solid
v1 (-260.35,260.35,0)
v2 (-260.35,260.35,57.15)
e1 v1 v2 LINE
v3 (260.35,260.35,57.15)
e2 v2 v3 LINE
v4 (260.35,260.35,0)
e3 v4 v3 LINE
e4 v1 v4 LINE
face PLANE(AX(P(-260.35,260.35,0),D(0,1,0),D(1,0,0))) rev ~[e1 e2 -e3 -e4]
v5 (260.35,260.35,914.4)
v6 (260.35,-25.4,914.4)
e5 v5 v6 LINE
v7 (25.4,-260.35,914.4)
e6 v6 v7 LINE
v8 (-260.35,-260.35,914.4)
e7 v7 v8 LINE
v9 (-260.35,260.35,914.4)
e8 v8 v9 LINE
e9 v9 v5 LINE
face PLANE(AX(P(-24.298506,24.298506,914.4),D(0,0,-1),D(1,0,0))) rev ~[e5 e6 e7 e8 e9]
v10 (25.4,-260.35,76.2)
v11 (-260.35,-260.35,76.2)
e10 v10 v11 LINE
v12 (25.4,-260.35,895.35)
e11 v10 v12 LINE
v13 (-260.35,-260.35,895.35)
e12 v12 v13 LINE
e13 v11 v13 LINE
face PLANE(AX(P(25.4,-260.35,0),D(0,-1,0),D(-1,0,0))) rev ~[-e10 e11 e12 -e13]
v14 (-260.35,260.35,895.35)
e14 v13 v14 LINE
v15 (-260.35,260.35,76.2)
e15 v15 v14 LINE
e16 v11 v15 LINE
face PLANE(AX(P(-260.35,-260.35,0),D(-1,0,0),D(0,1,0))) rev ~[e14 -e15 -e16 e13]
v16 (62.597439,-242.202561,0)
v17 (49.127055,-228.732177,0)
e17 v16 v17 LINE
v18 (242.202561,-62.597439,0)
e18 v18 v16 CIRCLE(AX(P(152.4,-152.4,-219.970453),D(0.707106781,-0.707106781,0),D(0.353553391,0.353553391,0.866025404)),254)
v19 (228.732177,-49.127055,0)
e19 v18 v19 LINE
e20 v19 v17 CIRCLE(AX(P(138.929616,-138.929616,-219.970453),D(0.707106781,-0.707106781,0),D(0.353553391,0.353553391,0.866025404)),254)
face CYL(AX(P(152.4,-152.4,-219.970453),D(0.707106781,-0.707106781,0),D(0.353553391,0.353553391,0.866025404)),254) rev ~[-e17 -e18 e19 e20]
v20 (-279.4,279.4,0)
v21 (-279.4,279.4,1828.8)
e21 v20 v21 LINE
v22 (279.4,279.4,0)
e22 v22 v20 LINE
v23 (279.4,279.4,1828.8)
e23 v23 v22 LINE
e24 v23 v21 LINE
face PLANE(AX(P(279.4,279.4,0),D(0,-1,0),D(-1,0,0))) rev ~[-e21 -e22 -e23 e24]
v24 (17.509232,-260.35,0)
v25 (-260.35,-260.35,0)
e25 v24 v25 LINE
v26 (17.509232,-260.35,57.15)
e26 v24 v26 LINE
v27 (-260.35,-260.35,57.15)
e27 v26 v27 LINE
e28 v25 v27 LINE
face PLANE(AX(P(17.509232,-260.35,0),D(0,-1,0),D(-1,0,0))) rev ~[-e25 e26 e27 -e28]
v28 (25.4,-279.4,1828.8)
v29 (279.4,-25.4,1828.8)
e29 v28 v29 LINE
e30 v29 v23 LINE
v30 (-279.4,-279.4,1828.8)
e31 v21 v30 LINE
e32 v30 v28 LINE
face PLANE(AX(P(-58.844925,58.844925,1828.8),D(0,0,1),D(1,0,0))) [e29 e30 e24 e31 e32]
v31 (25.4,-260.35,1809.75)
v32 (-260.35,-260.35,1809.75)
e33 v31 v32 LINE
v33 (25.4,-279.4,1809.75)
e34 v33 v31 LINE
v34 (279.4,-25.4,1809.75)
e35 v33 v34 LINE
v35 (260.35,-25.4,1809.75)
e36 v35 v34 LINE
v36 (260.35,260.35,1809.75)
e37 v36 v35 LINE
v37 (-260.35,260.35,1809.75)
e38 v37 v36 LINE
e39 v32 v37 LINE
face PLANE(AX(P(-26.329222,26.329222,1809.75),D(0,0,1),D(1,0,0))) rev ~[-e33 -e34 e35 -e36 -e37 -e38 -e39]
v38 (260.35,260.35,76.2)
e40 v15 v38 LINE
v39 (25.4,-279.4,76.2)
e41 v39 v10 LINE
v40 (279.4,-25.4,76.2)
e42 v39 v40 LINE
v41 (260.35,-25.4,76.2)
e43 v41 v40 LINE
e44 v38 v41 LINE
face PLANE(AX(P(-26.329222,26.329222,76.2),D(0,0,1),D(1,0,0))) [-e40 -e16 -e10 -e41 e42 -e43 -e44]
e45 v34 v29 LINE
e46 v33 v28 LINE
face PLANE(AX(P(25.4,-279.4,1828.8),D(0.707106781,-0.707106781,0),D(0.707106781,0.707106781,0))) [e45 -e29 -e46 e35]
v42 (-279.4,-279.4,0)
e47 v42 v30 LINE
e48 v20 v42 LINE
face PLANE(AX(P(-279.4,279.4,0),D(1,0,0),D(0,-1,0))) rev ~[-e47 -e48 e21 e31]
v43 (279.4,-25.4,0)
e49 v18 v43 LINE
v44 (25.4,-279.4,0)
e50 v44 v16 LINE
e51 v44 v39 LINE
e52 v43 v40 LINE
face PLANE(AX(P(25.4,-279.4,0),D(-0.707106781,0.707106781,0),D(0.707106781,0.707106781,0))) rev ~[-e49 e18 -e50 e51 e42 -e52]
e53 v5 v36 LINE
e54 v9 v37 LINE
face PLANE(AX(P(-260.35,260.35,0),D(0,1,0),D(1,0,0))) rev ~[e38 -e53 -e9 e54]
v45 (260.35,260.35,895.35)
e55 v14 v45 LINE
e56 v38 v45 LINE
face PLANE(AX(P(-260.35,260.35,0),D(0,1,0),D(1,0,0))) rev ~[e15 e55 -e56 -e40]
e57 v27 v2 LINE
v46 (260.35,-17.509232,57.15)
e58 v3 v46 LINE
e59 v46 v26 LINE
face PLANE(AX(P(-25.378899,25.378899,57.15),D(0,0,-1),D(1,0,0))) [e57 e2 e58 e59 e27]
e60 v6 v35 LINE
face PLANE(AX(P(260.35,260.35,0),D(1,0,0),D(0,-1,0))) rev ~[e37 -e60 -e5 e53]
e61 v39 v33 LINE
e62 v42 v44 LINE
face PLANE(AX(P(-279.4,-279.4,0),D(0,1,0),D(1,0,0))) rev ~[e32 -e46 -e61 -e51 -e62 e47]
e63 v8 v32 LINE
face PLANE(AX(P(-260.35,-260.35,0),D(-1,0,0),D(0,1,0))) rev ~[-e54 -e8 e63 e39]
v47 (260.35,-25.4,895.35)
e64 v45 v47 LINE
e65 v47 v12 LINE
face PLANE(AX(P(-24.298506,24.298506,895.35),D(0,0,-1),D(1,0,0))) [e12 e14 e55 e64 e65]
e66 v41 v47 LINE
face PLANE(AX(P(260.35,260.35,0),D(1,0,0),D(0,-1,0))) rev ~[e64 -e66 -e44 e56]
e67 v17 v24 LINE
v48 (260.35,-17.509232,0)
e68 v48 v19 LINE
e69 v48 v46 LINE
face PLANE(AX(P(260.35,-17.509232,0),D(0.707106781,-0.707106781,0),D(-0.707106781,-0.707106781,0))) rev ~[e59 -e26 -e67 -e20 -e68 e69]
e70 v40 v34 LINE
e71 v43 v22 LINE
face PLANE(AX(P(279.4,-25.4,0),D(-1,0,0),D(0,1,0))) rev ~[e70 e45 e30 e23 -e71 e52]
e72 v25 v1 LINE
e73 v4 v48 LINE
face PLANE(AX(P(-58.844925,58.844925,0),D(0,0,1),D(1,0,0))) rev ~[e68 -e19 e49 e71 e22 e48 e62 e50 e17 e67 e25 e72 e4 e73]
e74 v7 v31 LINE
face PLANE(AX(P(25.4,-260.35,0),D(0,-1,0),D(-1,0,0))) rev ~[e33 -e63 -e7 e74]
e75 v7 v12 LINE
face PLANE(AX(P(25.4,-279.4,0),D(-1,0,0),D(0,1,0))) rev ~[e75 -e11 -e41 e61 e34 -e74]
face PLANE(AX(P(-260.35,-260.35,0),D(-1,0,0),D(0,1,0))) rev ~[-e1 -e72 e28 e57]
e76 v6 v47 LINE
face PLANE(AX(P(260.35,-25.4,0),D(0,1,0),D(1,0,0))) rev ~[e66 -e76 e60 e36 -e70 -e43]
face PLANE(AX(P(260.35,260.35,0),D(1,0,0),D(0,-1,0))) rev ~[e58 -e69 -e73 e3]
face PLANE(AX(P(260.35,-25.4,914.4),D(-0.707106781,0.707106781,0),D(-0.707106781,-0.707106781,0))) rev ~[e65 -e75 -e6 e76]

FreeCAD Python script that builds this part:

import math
import FreeCAD as App
import Part
import Sketcher
Q = App.Units.Quantity


def add_polygon(sketch, points):
    """Adds a closed chain of lines whose ends are joined by coincident constraints."""
    first, n = sketch.GeometryCount, len(points)
    for a, b in zip(points, points[1:] + points[:1]):
        sketch.addGeometry(Part.LineSegment(App.Vector(*a, 0), App.Vector(*b, 0)), False)
    for i in range(n):
        sketch.addConstraint(Sketcher.Constraint("Coincident", first + i, 2, first + (i + 1) % n, 1))

doc = App.newDocument("Part")
body = doc.addObject("PartDesign::Body", "Body")

# Sketch on XY plane
sketch1 = doc.addObject("Sketcher::SketchObject", "Sketch")
body.addObject(sketch1)
sketch1.AttachmentSupport = (doc.XY_Plane, [""])
sketch1.MapMode = "FlatFace"
add_polygon(sketch1, [(279, 279), (-279, 279), (-279, -279), (25, -279), (25, -260), (-260, -260), (-260, 260), (260, 260), (260, -25), (279, -25)])  # lines 0-9
sketch1.addConstraint(Sketcher.Constraint("Horizontal", 0))
sketch1.addConstraint(Sketcher.Constraint("Vertical", 1))
sketch1.addConstraint(Sketcher.Constraint("Horizontal", 2))
sketch1.addConstraint(Sketcher.Constraint("Vertical", 3))
sketch1.addConstraint(Sketcher.Constraint("Horizontal", 4))
sketch1.addConstraint(Sketcher.Constraint("Vertical", 5))
sketch1.addConstraint(Sketcher.Constraint("Horizontal", 6))
sketch1.addConstraint(Sketcher.Constraint("Vertical", 7))
sketch1.addConstraint(Sketcher.Constraint("Horizontal", 8))
sketch1.addConstraint(Sketcher.Constraint("Vertical", 9))
sketch1.addConstraint(Sketcher.Constraint("Symmetric", 4, 2, 6, 2, -1, 1))
sketch1.addConstraint(Sketcher.Constraint("Symmetric", 1, 2, 9, 2, -1, 1))
sketch1.addConstraint(Sketcher.Constraint("Equal", 0, 1))
sketch1.addConstraint(Sketcher.Constraint("Equal", 8, 3))
sketch1.addConstraint(Sketcher.Constraint("Equal", 4, 7))
sketch1.addConstraint(Sketcher.Constraint("DistanceX", 0, 2, 0, 1, Q("22 in")))
sketch1.addConstraint(Sketcher.Constraint("DistanceX", 2, 1, 2, 2, Q("12 in")))
sketch1.addConstraint(Sketcher.Constraint("DistanceX", 6, 1, 6, 2, Q("20.5 in")))
pad1 = doc.addObject("PartDesign::Pad", "Pad")
body.addObject(pad1)
pad1.Profile = sketch1
pad1.Length = Q("72 in")

# Sketch on XY plane
sketch2 = doc.addObject("Sketcher::SketchObject", "Sketch001")
body.addObject(sketch2)
sketch2.AttachmentSupport = (doc.XY_Plane, [""])
sketch2.MapMode = "FlatFace"
sketch2.AttachmentOffset = App.Placement(App.Vector(0, 0, 72 * 25.4), App.Rotation())
add_polygon(sketch2, [(-279, -279), (25, -279), (279, -25), (279, 279), (-279, 279)])  # lines 0-4
sketch2.addConstraint(Sketcher.Constraint("Horizontal", 0))
sketch2.addConstraint(Sketcher.Constraint("Vertical", 2))
sketch2.addConstraint(Sketcher.Constraint("Horizontal", 3))
sketch2.addConstraint(Sketcher.Constraint("Vertical", 4))
sketch2.addConstraint(Sketcher.Constraint("Symmetric", 2, 2, 4, 2, -1, 1))
sketch2.addConstraint(Sketcher.Constraint("Equal", 0, 2))
sketch2.addConstraint(Sketcher.Constraint("Equal", 3, 4))
sketch2.addConstraint(Sketcher.Constraint("DistanceX", 0, 1, 0, 2, Q("12 in")))
sketch2.addConstraint(Sketcher.Constraint("DistanceX", 3, 2, 3, 1, Q("22 in")))
pad2 = doc.addObject("PartDesign::Pad", "Pad001")
body.addObject(pad2)
pad2.Profile = sketch2
pad2.Length = Q("0.75 in")
pad2.Reversed = True

# Sketch on XY plane
sketch3 = doc.addObject("Sketcher::SketchObject", "Sketch002")
body.addObject(sketch3)
sketch3.AttachmentSupport = (doc.XY_Plane, [""])
sketch3.MapMode = "FlatFace"
add_polygon(sketch3, [(-279, -279), (25, -279), (279, -25), (279, 279), (-279, 279)])  # lines 0-4
sketch3.addConstraint(Sketcher.Constraint("Horizontal", 0))
sketch3.addConstraint(Sketcher.Constraint("Vertical", 2))
sketch3.addConstraint(Sketcher.Constraint("Horizontal", 3))
sketch3.addConstraint(Sketcher.Constraint("Vertical", 4))
sketch3.addConstraint(Sketcher.Constraint("Symmetric", 2, 2, 4, 2, -1, 1))
sketch3.addConstraint(Sketcher.Constraint("Equal", 0, 2))
sketch3.addConstraint(Sketcher.Constraint("Equal", 3, 4))
sketch3.addConstraint(Sketcher.Constraint("DistanceX", 0, 1, 0, 2, Q("12 in")))
sketch3.addConstraint(Sketcher.Constraint("DistanceX", 3, 2, 3, 1, Q("22 in")))
pad3 = doc.addObject("PartDesign::Pad", "Pad002")
body.addObject(pad3)
pad3.Profile = sketch3
pad3.Length = Q("3 in")

# Sketch on XY plane
sketch4 = doc.addObject("Sketcher::SketchObject", "Sketch003")
body.addObject(sketch4)
sketch4.AttachmentSupport = (doc.XY_Plane, [""])
sketch4.MapMode = "FlatFace"
add_polygon(sketch4, [(-260, 260), (260, 260), (260, -18), (18, -260), (-260, -260)])  # lines 0-4
sketch4.addConstraint(Sketcher.Constraint("Horizontal", 0))
sketch4.addConstraint(Sketcher.Constraint("Vertical", 1))
sketch4.addConstraint(Sketcher.Constraint("Horizontal", 3))
sketch4.addConstraint(Sketcher.Constraint("Vertical", 4))
sketch4.addConstraint(Sketcher.Constraint("Symmetric", 0, 2, 3, 2, -1, 1))
sketch4.addConstraint(Sketcher.Constraint("Equal", 3, 1))
sketch4.addConstraint(Sketcher.Constraint("Equal", 0, 4))
sketch4.addConstraint(Sketcher.Constraint("DistanceX", 0, 1, 0, 2, Q("20.5 in")))
sketch4.addConstraint(Sketcher.Constraint("DistanceX", 3, 2, 3, 1, 277.859232))
pocket1 = doc.addObject("PartDesign::Pocket", "Pocket")
body.addObject(pocket1)
pocket1.Profile = sketch4
pocket1.Length = Q("2.25 in")
pocket1.Reversed = True

# Sketch on an angled plane
sketch5 = doc.addObject("Sketcher::SketchObject", "Sketch004")
body.addObject(sketch5)
sketch5.Placement = App.Placement(App.Vector(152.4, -152.4, 0), App.Rotation(App.Vector(0.707106781, 0.707106781, 0), App.Vector(0, 0, 0.999999999), App.Vector(0.707106781, -0.707106781, 0), "ZXY"))
sketch5.addGeometry(Part.LineSegment(App.Vector(-127, 0, 0), App.Vector(127, 0, 0)), False)
sketch5.addGeometry(Part.ArcOfCircle(Part.Circle(App.Vector(0, -220, 0), App.Vector(0, 0, 1), 254), math.radians(60), math.radians(120)), False)
sketch5.addConstraint(Sketcher.Constraint("Coincident", 0, 1, 1, 2))
sketch5.addConstraint(Sketcher.Constraint("Coincident", 1, 1, 0, 2))
sketch5.addConstraint(Sketcher.Constraint("Horizontal", 0))
sketch5.addConstraint(Sketcher.Constraint("Symmetric", 0, 1, 1, 1, -1, 1))
sketch5.addConstraint(Sketcher.Constraint("Radius", 1, Q("10 in")))
sketch5.addConstraint(Sketcher.Constraint("DistanceX", 0, 1, 0, 2, Q("10 in")))
pocket2 = doc.addObject("PartDesign::Pocket", "Pocket001")
body.addObject(pocket2)
pocket2.Profile = sketch5
pocket2.Length = Q("1 in")

# Sketch on XY plane
sketch6 = doc.addObject("Sketcher::SketchObject", "Sketch005")
body.addObject(sketch6)
sketch6.AttachmentSupport = (doc.XY_Plane, [""])
sketch6.MapMode = "FlatFace"
sketch6.AttachmentOffset = App.Placement(App.Vector(0, 0, 36 * 25.4), App.Rotation())
add_polygon(sketch6, [(-260, -260), (-260, 260), (260, 260), (260, -25), (25, -260)])  # lines 0-4
sketch6.addConstraint(Sketcher.Constraint("Vertical", 0))
sketch6.addConstraint(Sketcher.Constraint("Horizontal", 1))
sketch6.addConstraint(Sketcher.Constraint("Vertical", 2))
sketch6.addConstraint(Sketcher.Constraint("Horizontal", 4))
sketch6.addConstraint(Sketcher.Constraint("Symmetric", 1, 2, 4, 2, -1, 1))
sketch6.addConstraint(Sketcher.Constraint("Equal", 1, 0))
sketch6.addConstraint(Sketcher.Constraint("Equal", 4, 2))
sketch6.addConstraint(Sketcher.Constraint("DistanceX", 1, 1, 1, 2, Q("20.5 in")))
sketch6.addConstraint(Sketcher.Constraint("DistanceY", 2, 2, -1, 1, Q("1 in")))
pad4 = doc.addObject("PartDesign::Pad", "Pad003")
body.addObject(pad4)
pad4.Profile = sketch6
pad4.Length = Q("0.75 in")
pad4.Reversed = True

doc.recompute()
